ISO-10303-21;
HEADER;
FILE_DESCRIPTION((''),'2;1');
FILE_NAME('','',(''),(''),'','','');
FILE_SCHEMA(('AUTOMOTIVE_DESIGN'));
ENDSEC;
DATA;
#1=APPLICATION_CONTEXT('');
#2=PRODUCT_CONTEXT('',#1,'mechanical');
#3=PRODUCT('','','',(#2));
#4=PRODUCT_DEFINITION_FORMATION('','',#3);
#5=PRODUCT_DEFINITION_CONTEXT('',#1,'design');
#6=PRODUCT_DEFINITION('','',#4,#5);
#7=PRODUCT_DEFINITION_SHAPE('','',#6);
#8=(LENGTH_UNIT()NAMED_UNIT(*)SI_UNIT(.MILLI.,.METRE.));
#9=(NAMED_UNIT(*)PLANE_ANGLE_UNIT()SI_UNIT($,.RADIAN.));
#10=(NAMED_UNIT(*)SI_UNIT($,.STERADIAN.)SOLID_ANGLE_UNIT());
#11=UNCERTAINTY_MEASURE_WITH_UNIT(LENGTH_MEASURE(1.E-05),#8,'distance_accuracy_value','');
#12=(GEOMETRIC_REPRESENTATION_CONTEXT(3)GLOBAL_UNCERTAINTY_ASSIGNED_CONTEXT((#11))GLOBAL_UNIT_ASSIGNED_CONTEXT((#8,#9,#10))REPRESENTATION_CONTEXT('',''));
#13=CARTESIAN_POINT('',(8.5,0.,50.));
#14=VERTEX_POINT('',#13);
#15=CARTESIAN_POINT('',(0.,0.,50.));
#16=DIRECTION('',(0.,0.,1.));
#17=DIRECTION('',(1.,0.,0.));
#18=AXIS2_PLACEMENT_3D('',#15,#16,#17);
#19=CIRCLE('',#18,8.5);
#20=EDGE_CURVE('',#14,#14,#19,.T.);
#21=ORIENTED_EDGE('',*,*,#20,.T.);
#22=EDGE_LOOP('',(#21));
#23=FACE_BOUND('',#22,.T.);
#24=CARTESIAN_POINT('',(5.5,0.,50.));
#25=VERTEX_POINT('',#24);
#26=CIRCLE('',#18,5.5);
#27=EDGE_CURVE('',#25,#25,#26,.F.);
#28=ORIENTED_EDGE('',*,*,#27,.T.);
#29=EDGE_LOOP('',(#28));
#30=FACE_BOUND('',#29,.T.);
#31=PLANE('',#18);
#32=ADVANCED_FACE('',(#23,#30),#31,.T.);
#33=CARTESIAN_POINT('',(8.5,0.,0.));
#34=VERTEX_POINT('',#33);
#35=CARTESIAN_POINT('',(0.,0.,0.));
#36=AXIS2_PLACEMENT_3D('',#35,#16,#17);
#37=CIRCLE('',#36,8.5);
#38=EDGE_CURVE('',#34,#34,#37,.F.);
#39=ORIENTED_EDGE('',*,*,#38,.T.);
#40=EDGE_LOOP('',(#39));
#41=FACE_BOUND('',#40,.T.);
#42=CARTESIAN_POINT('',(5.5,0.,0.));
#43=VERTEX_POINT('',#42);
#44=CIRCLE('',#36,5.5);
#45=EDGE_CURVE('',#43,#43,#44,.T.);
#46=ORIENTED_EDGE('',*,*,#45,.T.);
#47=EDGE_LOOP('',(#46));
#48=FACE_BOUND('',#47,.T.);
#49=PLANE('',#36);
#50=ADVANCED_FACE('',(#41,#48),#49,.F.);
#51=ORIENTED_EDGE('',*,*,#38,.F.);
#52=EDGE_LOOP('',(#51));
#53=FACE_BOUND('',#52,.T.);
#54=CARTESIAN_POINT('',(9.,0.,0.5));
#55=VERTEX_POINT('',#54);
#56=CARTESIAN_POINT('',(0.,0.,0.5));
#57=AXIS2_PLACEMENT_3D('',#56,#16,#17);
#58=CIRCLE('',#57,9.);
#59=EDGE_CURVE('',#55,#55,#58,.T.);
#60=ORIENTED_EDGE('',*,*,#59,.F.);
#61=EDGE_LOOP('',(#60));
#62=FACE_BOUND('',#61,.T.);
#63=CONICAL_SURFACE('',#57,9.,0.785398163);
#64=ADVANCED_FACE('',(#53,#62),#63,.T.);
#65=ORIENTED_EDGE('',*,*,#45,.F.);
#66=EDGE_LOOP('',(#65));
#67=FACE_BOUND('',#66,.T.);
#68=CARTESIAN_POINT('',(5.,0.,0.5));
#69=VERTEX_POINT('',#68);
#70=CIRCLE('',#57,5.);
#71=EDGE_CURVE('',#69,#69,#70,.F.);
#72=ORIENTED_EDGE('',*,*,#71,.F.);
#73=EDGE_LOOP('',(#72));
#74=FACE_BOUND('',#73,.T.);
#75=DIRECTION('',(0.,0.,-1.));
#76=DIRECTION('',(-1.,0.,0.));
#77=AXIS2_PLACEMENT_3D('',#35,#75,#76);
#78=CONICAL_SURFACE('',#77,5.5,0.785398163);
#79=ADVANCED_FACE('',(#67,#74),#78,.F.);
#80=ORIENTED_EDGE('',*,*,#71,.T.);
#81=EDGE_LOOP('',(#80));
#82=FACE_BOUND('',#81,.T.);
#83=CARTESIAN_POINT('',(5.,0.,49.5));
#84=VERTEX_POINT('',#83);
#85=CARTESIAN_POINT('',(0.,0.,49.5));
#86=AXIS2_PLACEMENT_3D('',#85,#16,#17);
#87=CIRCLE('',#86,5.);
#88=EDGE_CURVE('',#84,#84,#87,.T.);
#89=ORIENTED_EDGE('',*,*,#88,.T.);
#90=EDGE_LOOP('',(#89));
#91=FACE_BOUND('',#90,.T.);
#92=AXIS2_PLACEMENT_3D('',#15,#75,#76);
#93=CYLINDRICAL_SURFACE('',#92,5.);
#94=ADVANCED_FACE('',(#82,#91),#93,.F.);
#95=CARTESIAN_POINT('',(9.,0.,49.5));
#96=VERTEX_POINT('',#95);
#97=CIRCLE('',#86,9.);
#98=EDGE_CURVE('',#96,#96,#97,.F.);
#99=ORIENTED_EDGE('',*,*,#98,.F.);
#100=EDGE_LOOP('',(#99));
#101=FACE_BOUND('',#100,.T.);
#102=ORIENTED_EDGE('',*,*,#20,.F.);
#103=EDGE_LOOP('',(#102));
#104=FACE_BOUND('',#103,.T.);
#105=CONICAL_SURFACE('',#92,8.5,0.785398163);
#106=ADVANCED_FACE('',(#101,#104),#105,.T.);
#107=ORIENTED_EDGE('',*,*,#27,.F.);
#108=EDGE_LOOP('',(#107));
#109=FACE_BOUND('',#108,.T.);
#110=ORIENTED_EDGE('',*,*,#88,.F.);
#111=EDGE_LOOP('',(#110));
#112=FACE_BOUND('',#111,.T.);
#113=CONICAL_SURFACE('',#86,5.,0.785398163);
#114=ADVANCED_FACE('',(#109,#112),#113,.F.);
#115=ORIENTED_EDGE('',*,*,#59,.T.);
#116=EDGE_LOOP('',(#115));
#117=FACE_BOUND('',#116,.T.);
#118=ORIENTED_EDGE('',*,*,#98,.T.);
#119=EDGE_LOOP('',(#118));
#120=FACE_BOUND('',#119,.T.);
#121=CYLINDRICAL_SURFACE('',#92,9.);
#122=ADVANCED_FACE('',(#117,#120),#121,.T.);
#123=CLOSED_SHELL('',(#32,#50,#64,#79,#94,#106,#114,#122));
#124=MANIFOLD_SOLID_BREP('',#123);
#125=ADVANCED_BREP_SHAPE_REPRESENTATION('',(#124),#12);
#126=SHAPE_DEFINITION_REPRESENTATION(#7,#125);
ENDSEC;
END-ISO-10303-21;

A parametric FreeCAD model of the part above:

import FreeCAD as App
import Part
import Sketcher
Q = App.Units.Quantity


def edges_at(feature, points):
    """Names of the edges that pass closest to the given points."""
    edges = feature.Shape.Edges
    near = lambda p: min(range(len(edges)), key=lambda i: edges[i].distToShape(Part.Vertex(*p))[0])
    return sorted({f"Edge{near(p) + 1}" for p in points})

doc = App.newDocument("Part")
body = doc.addObject("PartDesign::Body", "Body")

sketch1 = body.newObject("Sketcher::SketchObject", "Sketch")
sketch1.AttachmentSupport = (doc.getObject("XY_Plane"), [""])
sketch1.MapMode = "FlatFace"
sketch1.addGeometry([
    Part.Circle(App.Vector(0, 0, 0), App.Vector(0, 0, 1), 9),
    Part.Circle(App.Vector(0, 0, 0), App.Vector(0, 0, 1), 5),
], False)
sketch1.addConstraint([
    Sketcher.Constraint("Coincident", 0, 3, -1, 1),
    Sketcher.Constraint("Coincident", 1, 3, -1, 1),
    Sketcher.Constraint("Diameter", 0, Q("18 mm")),
    Sketcher.Constraint("Diameter", 1, Q("10 mm")),
])
pad1 = body.newObject("PartDesign::Pad", "Pad")
pad1.Profile = sketch1
pad1.Length = 50
doc.recompute()

chamfer = body.newObject("PartDesign::Chamfer", "Chamfer")
chamfer.Base = (pad1, edges_at(pad1, [
    (-9, 0, 0),
    (-9, 0, 50),
    (-5, 0, 0),
    (-5, 0, 50),
]))
chamfer.Size = 0.5

doc.recompute()
